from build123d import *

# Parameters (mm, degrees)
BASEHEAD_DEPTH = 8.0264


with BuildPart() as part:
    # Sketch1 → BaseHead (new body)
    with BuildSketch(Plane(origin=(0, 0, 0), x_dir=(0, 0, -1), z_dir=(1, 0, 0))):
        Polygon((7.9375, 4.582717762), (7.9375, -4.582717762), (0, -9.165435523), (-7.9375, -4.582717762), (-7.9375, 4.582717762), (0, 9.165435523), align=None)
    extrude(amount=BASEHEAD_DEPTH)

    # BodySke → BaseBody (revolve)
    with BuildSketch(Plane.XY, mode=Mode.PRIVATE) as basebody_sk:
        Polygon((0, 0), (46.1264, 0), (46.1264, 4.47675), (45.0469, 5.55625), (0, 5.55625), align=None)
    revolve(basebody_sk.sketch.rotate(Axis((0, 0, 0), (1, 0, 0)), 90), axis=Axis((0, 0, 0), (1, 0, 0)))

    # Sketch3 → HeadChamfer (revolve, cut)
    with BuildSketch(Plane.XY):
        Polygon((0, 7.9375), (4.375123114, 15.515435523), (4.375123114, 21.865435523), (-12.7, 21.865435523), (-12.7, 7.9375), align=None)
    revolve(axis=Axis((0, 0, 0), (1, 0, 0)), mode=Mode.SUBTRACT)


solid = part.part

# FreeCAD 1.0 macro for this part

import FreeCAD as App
import Part
import Sketcher
from FreeCAD import Vector
Q = App.Units.Quantity


def add_polygon(sketch, points):
    """Adds a closed chain of lines whose ends are joined by coincident constraints."""
    first, n = sketch.GeometryCount, len(points)
    for a, b in zip(points, points[1:] + points[:1]):
        sketch.addGeometry(Part.LineSegment(App.Vector(*a, 0), App.Vector(*b, 0)), False)
    for i in range(n):
        sketch.addConstraint(Sketcher.Constraint("Coincident", first + i, 2, first + (i + 1) % n, 1))

doc = App.newDocument("Part")
body = doc.addObject("PartDesign::Body", "Body")

# Sketch on YZ plane
sketch1 = body.newObject("Sketcher::SketchObject", "Sketch")
sketch1.AttachmentSupport = (doc.getObject("YZ_Plane"), [""])
sketch1.MapMode = "FlatFace"
add_polygon(sketch1, [(-4.582718, -7.9375), (4.582718, -7.9375), (9.165436, 0), (4.582718, 7.9375), (-4.582718, 7.9375), (-9.165436, 0)])  # lines 0-5
sketch1.addConstraint([
    Sketcher.Constraint("Horizontal", 0),
    Sketcher.Constraint("Horizontal", 3),
    Sketcher.Constraint("Symmetric", 0, 2, 3, 2, -1, 1),
    Sketcher.Constraint("Symmetric", 1, 2, 4, 2, -1, 1),
    Sketcher.Constraint("PointOnObject", 1, 2, -1),
    Sketcher.Constraint("Parallel", 2, 5),
    Sketcher.Constraint("Vertical", 0, 2, 2, 2),
    Sketcher.Constraint("Angle", 1, Q("60 deg")),
    Sketcher.Constraint("DistanceY", 0, 2, -1, 1, Q("0.3125 in")),
    Sketcher.Constraint("DistanceX", 0, 1, 0, 2, 9.165436),
])
pad1 = body.newObject("PartDesign::Pad", "Pad")
pad1.Profile = sketch1
pad1.Length = Q("0.316 in")

# Sketch on XY plane
sketch2 = body.newObject("Sketcher::SketchObject", "Sketch001")
sketch2.AttachmentSupport = (doc.getObject("XY_Plane"), [""])
sketch2.MapMode = "FlatFace"
add_polygon(sketch2, [(0, 0), (46.1264, 0), (46.1264, 4.47675), (45.0469, 5.55625), (0, 5.55625)])  # lines 0-4
sketch2.addConstraint([
    Sketcher.Constraint("Horizontal", 0),
    Sketcher.Constraint("Vertical", 1),
    Sketcher.Constraint("Horizontal", 3),
    Sketcher.Constraint("Vertical", 4),
    Sketcher.Constraint("Coincident", 4, 2, -1, 1),
    Sketcher.Constraint("Angle", 2, Q("135 deg")),
    Sketcher.Constraint("DistanceX", 0, 1, 0, 2, Q("1.816 in")),
    Sketcher.Constraint("DistanceY", 4, 2, 4, 1, Q("0.21875 in")),
    Sketcher.Constraint("DistanceX", 3, 2, 3, 1, Q("1.7735 in")),
])
revolution = body.newObject("PartDesign::Revolution", "Revolution")
revolution.Profile = sketch2
revolution.ReferenceAxis = (sketch2, ["H_Axis"])
revolution.Angle = 360

# Sketch on XY plane
sketch3 = body.newObject("Sketcher::SketchObject", "Sketch002")
sketch3.AttachmentSupport = (doc.getObject("XY_Plane"), [""])
sketch3.MapMode = "FlatFace"
add_polygon(sketch3, [(0, 7.9375), (4.375123, 15.515436), (4.375123, 21.865436), (-12.7, 21.865436), (-12.7, 7.9375)])  # lines 0-4
sketch3.addConstraint([
    Sketcher.Constraint("Vertical", 1),
    Sketcher.Constraint("Horizontal", 2),
    Sketcher.Constraint("Vertical", 3),
    Sketcher.Constraint("Horizontal", 4),
    Sketcher.Constraint("PointOnObject", 4, 2, -2),
    Sketcher.Constraint("DistanceX", 4, 1, 4, 2, Q("0.5 in")),
    Sketcher.Constraint("Angle", 0, Q("60 deg")),
    Sketcher.Constraint("DistanceY", 1, 1, 1, 2, Q("0.25 in")),
    Sketcher.Constraint("DistanceY", -1, 1, 3, 2, Q("0.3125 in")),
    Sketcher.Constraint("DistanceX", 2, 2, 2, 1, 17.075123),
])
groove = body.newObject("PartDesign::Groove", "Groove")
groove.Profile = sketch3
groove.ReferenceAxis = (sketch3, ["H_Axis"])
groove.Angle = 360

doc.recompute()
